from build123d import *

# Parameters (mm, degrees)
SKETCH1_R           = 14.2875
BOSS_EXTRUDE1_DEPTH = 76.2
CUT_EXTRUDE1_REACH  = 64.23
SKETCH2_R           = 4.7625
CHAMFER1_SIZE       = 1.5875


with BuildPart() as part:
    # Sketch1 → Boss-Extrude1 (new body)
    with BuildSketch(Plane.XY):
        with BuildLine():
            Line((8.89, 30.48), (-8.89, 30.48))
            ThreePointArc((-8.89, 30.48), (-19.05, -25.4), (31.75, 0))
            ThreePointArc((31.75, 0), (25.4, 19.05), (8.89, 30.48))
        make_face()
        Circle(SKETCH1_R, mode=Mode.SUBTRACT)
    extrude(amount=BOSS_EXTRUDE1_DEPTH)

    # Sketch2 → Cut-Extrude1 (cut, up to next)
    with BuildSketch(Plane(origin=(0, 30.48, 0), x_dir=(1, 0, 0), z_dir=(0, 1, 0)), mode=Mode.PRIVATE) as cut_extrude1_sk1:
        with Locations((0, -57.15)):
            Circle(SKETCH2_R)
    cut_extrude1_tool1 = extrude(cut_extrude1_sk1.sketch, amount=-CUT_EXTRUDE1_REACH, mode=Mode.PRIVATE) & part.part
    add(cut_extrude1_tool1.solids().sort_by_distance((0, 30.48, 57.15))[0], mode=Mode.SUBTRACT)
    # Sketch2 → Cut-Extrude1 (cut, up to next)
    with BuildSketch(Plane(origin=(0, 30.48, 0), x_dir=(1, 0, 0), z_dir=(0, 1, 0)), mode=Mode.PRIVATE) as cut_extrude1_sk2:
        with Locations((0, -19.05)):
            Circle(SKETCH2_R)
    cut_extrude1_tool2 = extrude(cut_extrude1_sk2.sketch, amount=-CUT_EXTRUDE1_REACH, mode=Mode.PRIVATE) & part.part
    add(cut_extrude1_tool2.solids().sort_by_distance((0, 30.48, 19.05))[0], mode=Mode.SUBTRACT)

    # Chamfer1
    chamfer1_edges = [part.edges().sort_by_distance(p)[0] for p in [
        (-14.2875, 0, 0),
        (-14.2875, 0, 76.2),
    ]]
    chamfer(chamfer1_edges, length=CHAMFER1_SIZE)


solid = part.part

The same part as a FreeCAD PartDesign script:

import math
import FreeCAD as App
import Part
import Sketcher
Q = App.Units.Quantity


def edges_at(feature, points):
    """Names of the edges that pass closest to the given points."""
    edges = feature.Shape.Edges
    near = lambda p: min(range(len(edges)), key=lambda i: edges[i].distToShape(Part.Vertex(*p))[0])
    return sorted({f"Edge{near(p) + 1}" for p in points})

doc = App.newDocument("Part")
body = doc.addObject("PartDesign::Body", "Body")

sketch1 = body.newObject("Sketcher::SketchObject", "Sketch")
sketch1.AttachmentSupport = (doc.getObject("XY_Plane"), [""])
sketch1.MapMode = "FlatFace"
sketch1.addGeometry(Part.LineSegment(App.Vector(9, 30, 0), App.Vector(-9, 30, 0)), False)
sketch1.addGeometry(Part.ArcOfCircle(Part.Circle(App.Vector(0, 0, 0), App.Vector(0, 0, 1), 32), math.radians(106), math.radians(434)), False)
sketch1.addGeometry(Part.Circle(App.Vector(0, 0, 0), App.Vector(0, 0, 1), 14), False)
sketch1.addConstraint(Sketcher.Constraint("Coincident", 0, 1, 1, 2))
sketch1.addConstraint(Sketcher.Constraint("Coincident", 1, 1, 0, 2))
sketch1.addConstraint(Sketcher.Constraint("Horizontal", 0))
sketch1.addConstraint(Sketcher.Constraint("Coincident", 1, 3, -1, 1))
sketch1.addConstraint(Sketcher.Constraint("Coincident", 2, 3, -1, 1))
sketch1.addConstraint(Sketcher.Constraint("Radius", 1, Q("1.25 in")))
sketch1.addConstraint(Sketcher.Constraint("Diameter", 2, Q("1.125 in")))
sketch1.addConstraint(Sketcher.Constraint("DistanceX", 0, 2, 0, 1, Q("0.7 in")))
pad1 = body.newObject("PartDesign::Pad", "Pad")
pad1.Profile = sketch1
pad1.Length = Q("3 in")

sketch2 = body.newObject("Sketcher::SketchObject", "Sketch001")
sketch2.AttachmentSupport = (doc.getObject("XZ_Plane"), [""])
sketch2.MapMode = "FlatFace"
sketch2.AttachmentOffset = App.Placement(App.Vector(0, 0, -1.2 * 25.4), App.Rotation())
sketch2.addGeometry(Part.Circle(App.Vector(0, 57.1, 0), App.Vector(0, 0, 1), 4.8), False)
sketch2.addConstraint(Sketcher.Constraint("PointOnObject", 0, 3, -2))
sketch2.addConstraint(Sketcher.Constraint("Diameter", 0, Q("0.375 in")))
sketch2.addConstraint(Sketcher.Constraint("DistanceY", -1, 1, 0, 3, Q("2.25 in")))
pocket1 = body.newObject("PartDesign::Pocket", "Pocket")
pocket1.Profile = sketch2
pocket1.Type = "UpToFirst"
pocket1.Reversed = True

sketch3 = body.newObject("Sketcher::SketchObject", "Sketch002")
sketch3.AttachmentSupport = (doc.getObject("XZ_Plane"), [""])
sketch3.MapMode = "FlatFace"
sketch3.AttachmentOffset = App.Placement(App.Vector(0, 0, -1.2 * 25.4), App.Rotation())
sketch3.addGeometry(Part.Circle(App.Vector(0, 19.1, 0), App.Vector(0, 0, 1), 4.8), False)
sketch3.addConstraint(Sketcher.Constraint("PointOnObject", 0, 3, -2))
sketch3.addConstraint(Sketcher.Constraint("Diameter", 0, Q("0.375 in")))
sketch3.addConstraint(Sketcher.Constraint("DistanceY", -1, 1, 0, 3, Q("0.75 in")))
pocket2 = body.newObject("PartDesign::Pocket", "Pocket001")
pocket2.Profile = sketch3
pocket2.Type = "UpToFirst"
pocket2.Reversed = True
doc.recompute()

chamfer = body.newObject("PartDesign::Chamfer", "Chamfer")
chamfer.Base = (pocket2, edges_at(pocket2, [(-14.287, 0, 0), (-14.287, 0, 76.2)]))
chamfer.Size = Q("0.0625 in")

doc.recompute()
